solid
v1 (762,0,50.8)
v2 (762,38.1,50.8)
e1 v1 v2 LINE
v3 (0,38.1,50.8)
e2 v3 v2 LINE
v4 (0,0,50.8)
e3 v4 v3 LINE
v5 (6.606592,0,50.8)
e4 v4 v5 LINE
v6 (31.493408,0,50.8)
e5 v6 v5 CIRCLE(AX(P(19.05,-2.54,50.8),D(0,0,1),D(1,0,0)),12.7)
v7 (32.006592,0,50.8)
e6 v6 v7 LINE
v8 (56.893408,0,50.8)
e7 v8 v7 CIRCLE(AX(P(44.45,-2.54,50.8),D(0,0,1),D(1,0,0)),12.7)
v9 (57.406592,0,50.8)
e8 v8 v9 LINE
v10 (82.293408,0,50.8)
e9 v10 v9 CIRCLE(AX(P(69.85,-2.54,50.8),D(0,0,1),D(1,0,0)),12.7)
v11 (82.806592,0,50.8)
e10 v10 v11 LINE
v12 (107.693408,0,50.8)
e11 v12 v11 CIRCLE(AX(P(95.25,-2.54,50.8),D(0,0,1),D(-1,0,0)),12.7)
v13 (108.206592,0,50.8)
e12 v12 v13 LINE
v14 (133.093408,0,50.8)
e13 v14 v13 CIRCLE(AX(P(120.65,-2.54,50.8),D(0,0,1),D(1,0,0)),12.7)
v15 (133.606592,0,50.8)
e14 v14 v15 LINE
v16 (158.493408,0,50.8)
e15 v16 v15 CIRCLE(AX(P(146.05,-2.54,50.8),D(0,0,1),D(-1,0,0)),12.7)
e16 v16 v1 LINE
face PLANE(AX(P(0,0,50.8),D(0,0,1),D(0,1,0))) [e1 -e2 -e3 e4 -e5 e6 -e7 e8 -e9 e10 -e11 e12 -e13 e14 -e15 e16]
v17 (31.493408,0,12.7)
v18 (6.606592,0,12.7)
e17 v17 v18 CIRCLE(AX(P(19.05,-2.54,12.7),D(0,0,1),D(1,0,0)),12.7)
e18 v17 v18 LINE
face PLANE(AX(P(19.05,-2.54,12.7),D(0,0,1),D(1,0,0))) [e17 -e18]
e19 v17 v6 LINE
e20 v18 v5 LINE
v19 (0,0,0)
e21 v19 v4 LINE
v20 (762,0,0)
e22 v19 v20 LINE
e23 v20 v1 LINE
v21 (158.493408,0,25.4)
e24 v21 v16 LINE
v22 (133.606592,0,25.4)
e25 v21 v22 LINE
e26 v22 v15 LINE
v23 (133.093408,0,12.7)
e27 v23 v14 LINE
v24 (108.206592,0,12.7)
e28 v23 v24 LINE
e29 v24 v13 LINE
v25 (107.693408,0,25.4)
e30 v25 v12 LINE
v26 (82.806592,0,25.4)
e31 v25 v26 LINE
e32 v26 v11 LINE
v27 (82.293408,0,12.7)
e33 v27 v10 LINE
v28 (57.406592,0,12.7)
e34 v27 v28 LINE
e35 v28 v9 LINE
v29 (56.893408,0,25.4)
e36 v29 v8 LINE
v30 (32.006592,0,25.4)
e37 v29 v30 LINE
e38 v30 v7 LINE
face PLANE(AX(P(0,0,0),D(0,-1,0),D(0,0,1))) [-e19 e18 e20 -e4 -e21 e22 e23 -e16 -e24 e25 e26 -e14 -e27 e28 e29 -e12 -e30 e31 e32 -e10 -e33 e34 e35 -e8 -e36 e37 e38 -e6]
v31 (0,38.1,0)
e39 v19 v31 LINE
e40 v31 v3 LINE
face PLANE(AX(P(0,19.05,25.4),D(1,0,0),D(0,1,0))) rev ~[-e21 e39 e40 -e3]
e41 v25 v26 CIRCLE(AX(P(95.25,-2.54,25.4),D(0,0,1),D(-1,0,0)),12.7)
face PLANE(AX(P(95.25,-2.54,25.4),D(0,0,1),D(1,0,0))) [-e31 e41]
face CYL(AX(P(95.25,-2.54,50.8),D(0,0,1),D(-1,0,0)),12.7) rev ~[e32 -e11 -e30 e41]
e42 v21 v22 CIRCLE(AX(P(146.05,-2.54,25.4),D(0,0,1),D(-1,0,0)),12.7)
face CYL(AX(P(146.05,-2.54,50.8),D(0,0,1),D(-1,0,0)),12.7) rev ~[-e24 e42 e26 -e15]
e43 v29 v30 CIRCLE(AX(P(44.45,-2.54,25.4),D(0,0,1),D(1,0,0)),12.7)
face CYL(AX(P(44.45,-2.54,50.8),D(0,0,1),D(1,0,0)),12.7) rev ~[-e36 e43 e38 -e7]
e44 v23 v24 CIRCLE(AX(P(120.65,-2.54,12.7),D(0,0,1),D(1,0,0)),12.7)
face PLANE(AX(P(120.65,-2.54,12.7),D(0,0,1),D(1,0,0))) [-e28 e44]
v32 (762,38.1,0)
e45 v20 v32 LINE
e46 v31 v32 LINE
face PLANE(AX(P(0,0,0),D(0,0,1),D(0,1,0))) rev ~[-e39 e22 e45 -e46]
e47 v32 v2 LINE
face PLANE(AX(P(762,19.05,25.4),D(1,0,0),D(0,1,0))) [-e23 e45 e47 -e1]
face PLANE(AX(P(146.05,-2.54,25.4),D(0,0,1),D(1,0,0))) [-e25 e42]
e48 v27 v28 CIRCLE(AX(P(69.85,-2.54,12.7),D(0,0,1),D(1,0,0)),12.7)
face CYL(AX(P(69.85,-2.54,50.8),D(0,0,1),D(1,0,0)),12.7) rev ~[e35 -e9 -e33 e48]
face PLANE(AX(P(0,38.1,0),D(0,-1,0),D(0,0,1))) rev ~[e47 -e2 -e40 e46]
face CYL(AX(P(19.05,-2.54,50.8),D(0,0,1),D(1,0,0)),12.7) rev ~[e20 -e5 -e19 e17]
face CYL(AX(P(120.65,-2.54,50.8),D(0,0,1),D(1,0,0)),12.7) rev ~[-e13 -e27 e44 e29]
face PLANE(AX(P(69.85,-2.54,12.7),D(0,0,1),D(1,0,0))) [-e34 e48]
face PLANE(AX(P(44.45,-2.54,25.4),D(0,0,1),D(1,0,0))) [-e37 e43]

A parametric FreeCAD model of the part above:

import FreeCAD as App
import Part
import Sketcher
Q = App.Units.Quantity

doc = App.newDocument("Part")
body = doc.addObject("PartDesign::Body", "Body")

# Sketch on YZ plane
sketch1 = body.newObject("Sketcher::SketchObject", "Sketch")
sketch1.AttachmentSupport = (doc.getObject("YZ_Plane"), [""])
sketch1.MapMode = "FlatFace"
sketch1.addGeometry([
    Part.LineSegment(App.Vector(0, 51, 0), App.Vector(0, 0, 0)),
    Part.LineSegment(App.Vector(0, 0, 0), App.Vector(38, 0, 0)),
    Part.LineSegment(App.Vector(38, 0, 0), App.Vector(38, 51, 0)),
    Part.LineSegment(App.Vector(38, 51, 0), App.Vector(0, 51, 0)),
], False)
sketch1.addConstraint([
    Sketcher.Constraint("Coincident", 0, 2, 1, 1),
    Sketcher.Constraint("Coincident", 1, 2, 2, 1),
    Sketcher.Constraint("Coincident", 2, 2, 3, 1),
    Sketcher.Constraint("Coincident", 3, 2, 0, 1),
    Sketcher.Constraint("Vertical", 0),
    Sketcher.Constraint("Horizontal", 1),
    Sketcher.Constraint("Vertical", 2),
    Sketcher.Constraint("Horizontal", 3),
    Sketcher.Constraint("Coincident", 0, 2, -1, 1),
    Sketcher.Constraint("DistanceY", 0, 2, 0, 1, Q("2 in")),
    Sketcher.Constraint("DistanceX", 1, 1, 1, 2, Q("1.5 in")),
])
pad1 = body.newObject("PartDesign::Pad", "Pad")
pad1.Profile = sketch1
pad1.Length = Q("30 in")

# Sketch on XY plane
sketch2 = body.newObject("Sketcher::SketchObject", "Sketch001")
sketch2.AttachmentSupport = (doc.getObject("XY_Plane"), [""])
sketch2.MapMode = "FlatFace"
sketch2.AttachmentOffset = App.Placement(App.Vector(0, 0, 2 * 25.4), App.Rotation())
sketch2.addGeometry([
    Part.Circle(App.Vector(19, -3, 0), App.Vector(0, 0, 1), 13),
    Part.Circle(App.Vector(70, -3, 0), App.Vector(0, 0, 1), 13),
    Part.Circle(App.Vector(121, -3, 0), App.Vector(0, 0, 1), 13),
], False)
sketch2.addConstraint([
    Sketcher.Constraint("Equal", 0, 1),
    Sketcher.Constraint("Equal", 1, 2),
    Sketcher.Constraint("Horizontal", 0, 3, 1, 3),
    Sketcher.Constraint("Horizontal", 1, 3, 2, 3),
    Sketcher.Constraint("Diameter", 0, Q("1 in")),
    Sketcher.Constraint("DistanceX", 0, 3, 1, 3, Q("2 in")),
    Sketcher.Constraint("DistanceX", 1, 3, 2, 3, Q("2 in")),
    Sketcher.Constraint("DistanceY", 0, 3, -1, 1, Q("0.1 in")),
    Sketcher.Constraint("DistanceX", -1, 1, 0, 3, Q("0.75 in")),
])
pocket1 = body.newObject("PartDesign::Pocket", "Pocket")
pocket1.Profile = sketch2
pocket1.Length = Q("1.5 in")

# Sketch on XY plane
sketch3 = body.newObject("Sketcher::SketchObject", "Sketch002")
sketch3.AttachmentSupport = (doc.getObject("XY_Plane"), [""])
sketch3.MapMode = "FlatFace"
sketch3.AttachmentOffset = App.Placement(App.Vector(0, 0, 2 * 25.4), App.Rotation())
sketch3.addGeometry([
    Part.Circle(App.Vector(44, -3, 0), App.Vector(0, 0, 1), 13),
    Part.Circle(App.Vector(146, -3, 0), App.Vector(0, 0, 1), 13),
    Part.Circle(App.Vector(95, -3, 0), App.Vector(0, 0, 1), 13),
], False)
sketch3.addConstraint([
    Sketcher.Constraint("Equal", 0, 1),
    Sketcher.Constraint("Equal", 1, 2),
    Sketcher.Constraint("Horizontal", 0, 3, 1, 3),
    Sketcher.Constraint("Horizontal", 1, 3, 2, 3),
    Sketcher.Constraint("Diameter", 0, Q("1 in")),
    Sketcher.Constraint("DistanceX", 0, 3, 1, 3, Q("4 in")),
    Sketcher.Constraint("DistanceX", 0, 3, 2, 3, Q("2 in")),
    Sketcher.Constraint("DistanceY", 0, 3, -1, 1, Q("0.1 in")),
    Sketcher.Constraint("DistanceX", -1, 1, 0, 3, Q("1.75 in")),
])
pocket2 = body.newObject("PartDesign::Pocket", "Pocket001")
pocket2.Profile = sketch3
pocket2.Length = Q("1 in")

doc.recompute()
